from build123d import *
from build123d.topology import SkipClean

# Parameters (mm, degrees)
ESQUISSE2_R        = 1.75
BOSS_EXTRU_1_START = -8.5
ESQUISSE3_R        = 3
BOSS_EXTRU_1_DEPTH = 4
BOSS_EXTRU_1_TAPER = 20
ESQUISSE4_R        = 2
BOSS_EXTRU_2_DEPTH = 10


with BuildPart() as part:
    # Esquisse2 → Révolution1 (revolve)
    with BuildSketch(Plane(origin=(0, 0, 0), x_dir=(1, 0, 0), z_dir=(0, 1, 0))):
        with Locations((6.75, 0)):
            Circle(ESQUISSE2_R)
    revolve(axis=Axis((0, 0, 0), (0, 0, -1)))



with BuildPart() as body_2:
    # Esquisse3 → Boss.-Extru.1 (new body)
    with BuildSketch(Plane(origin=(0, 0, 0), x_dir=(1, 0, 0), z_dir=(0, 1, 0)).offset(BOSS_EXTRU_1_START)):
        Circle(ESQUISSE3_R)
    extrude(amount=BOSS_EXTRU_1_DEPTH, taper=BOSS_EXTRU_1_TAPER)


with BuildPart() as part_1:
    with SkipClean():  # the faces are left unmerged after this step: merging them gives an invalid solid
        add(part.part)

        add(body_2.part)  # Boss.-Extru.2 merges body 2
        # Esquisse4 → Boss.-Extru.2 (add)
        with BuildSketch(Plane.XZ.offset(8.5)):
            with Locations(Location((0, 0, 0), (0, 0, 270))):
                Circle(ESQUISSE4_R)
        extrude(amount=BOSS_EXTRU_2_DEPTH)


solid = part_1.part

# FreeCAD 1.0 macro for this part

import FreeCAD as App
import Part
import Sketcher
from FreeCAD import Vector

doc = App.newDocument("Part")
body = doc.addObject("PartDesign::Body", "Body")

# Sketch on XZ plane
sketch1 = body.newObject("Sketcher::SketchObject", "Sketch")
sketch1.AttachmentSupport = (doc.getObject("XZ_Plane"), [""])
sketch1.MapMode = "FlatFace"
sketch1.addGeometry(Part.Circle(Vector(6.8, 0, 0), Vector(0, 0, 1), 1.8), False)
sketch1.addConstraint([
    Sketcher.Constraint("PointOnObject", 0, 3, -1),
    Sketcher.Constraint("Diameter", 0, 3.5),
    Sketcher.Constraint("DistanceX", -1, 1, 0, 3, 6.75),
])
revolution = body.newObject("PartDesign::Revolution", "Revolution")
revolution.Profile = sketch1
revolution.ReferenceAxis = (sketch1, ["V_Axis"])
revolution.Angle = 360
body2 = doc.addObject("PartDesign::Body", "Body001")

# Sketch on XZ plane
sketch2 = body2.newObject("Sketcher::SketchObject", "Sketch001")
sketch2.AttachmentSupport = (doc.getObject("XZ_Plane001"), [""])
sketch2.MapMode = "FlatFace"
sketch2.AttachmentOffset = App.Placement(Vector(0, 0, 8.5), App.Rotation())
sketch2.addGeometry(Part.Circle(Vector(0, 0, 0), Vector(0, 0, 1), 3), False)
sketch2.addConstraint([
    Sketcher.Constraint("Coincident", 0, 3, -1, 1),
    Sketcher.Constraint("Diameter", 0, 6.0),
])
pad1 = body2.newObject("PartDesign::Pad", "Pad")
pad1.Profile = sketch2
pad1.Length = 4
pad1.Reversed = True
pad1.TaperAngle = -20
doc.recompute()

boolean = body.newObject("PartDesign::Boolean", "Boolean")
boolean.Type = "Fuse"
boolean.addObjects([body2])

# Sketch on XZ plane
sketch3 = body.newObject("Sketcher::SketchObject", "Sketch002")
sketch3.AttachmentSupport = (doc.getObject("XZ_Plane"), [""])
sketch3.MapMode = "FlatFace"
sketch3.AttachmentOffset = App.Placement(Vector(0, 0, 8.5), App.Rotation())
sketch3.addGeometry(Part.Circle(Vector(0, 0, 0), Vector(0, 0, 1), 2), False)
sketch3.addConstraint([
    Sketcher.Constraint("Coincident", 0, 3, -1, 1),
    Sketcher.Constraint("Diameter", 0, 4.0),
])
pad2 = body.newObject("PartDesign::Pad", "Pad001")
pad2.Profile = sketch3
pad2.Length = 10

doc.recompute()
